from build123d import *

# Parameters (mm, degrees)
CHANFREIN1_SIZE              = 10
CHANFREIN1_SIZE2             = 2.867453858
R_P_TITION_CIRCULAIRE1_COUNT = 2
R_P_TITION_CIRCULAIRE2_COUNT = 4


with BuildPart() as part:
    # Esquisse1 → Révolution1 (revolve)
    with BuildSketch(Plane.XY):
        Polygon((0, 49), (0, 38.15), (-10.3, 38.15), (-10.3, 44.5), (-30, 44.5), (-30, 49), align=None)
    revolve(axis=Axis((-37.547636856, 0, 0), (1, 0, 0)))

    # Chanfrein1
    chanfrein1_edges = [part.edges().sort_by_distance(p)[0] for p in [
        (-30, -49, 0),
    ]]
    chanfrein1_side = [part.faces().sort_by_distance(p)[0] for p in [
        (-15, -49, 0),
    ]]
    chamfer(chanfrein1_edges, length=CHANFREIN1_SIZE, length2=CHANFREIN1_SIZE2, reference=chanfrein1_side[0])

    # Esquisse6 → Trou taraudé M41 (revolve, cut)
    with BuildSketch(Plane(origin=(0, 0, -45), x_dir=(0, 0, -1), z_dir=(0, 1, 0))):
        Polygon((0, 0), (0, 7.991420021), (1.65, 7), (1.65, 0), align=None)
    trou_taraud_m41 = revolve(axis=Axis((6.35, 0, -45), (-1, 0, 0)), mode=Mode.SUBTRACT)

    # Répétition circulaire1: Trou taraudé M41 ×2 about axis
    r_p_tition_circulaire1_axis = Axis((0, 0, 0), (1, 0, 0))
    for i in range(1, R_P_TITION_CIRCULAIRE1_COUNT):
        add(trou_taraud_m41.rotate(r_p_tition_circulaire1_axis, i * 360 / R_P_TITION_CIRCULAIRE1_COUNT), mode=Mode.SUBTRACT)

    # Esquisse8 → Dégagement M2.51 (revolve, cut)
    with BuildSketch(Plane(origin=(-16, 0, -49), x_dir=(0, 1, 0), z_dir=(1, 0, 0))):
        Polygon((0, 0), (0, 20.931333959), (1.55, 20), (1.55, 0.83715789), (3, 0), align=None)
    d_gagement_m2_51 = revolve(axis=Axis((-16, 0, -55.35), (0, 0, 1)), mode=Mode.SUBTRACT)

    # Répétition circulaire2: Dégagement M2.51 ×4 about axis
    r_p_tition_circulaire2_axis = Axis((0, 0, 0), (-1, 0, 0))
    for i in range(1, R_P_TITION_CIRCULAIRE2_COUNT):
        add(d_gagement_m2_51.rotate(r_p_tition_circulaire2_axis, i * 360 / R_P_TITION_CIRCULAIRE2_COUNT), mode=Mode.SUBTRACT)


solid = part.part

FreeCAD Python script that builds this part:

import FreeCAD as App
import Part
import Sketcher
Q = App.Units.Quantity


def edges_at(feature, points):
    """Names of the edges that pass closest to the given points."""
    edges = feature.Shape.Edges
    near = lambda p: min(range(len(edges)), key=lambda i: edges[i].distToShape(Part.Vertex(*p))[0])
    return sorted({f"Edge{near(p) + 1}" for p in points})

doc = App.newDocument("Part")
body = doc.addObject("PartDesign::Body", "Body")

sketch1 = doc.addObject("Sketcher::SketchObject", "Sketch")
body.addObject(sketch1)
sketch1.AttachmentSupport = (doc.XY_Plane, [""])
sketch1.MapMode = "FlatFace"
sketch1.addGeometry(Part.LineSegment(App.Vector(0, 38.1, 0), App.Vector(0, 49, 0)), False)
sketch1.addGeometry(Part.LineSegment(App.Vector(0, 49, 0), App.Vector(-30, 49, 0)), False)
sketch1.addGeometry(Part.LineSegment(App.Vector(-30, 49, 0), App.Vector(-30, 44.5, 0)), False)
sketch1.addGeometry(Part.LineSegment(App.Vector(-30, 44.5, 0), App.Vector(-10.3, 44.5, 0)), False)
sketch1.addGeometry(Part.LineSegment(App.Vector(-10.3, 44.5, 0), App.Vector(-10.3, 38.1, 0)), False)
sketch1.addGeometry(Part.LineSegment(App.Vector(-10.3, 38.1, 0), App.Vector(0, 38.1, 0)), False)
sketch1.addConstraint(Sketcher.Constraint("Coincident", 0, 2, 1, 1))
sketch1.addConstraint(Sketcher.Constraint("Coincident", 1, 2, 2, 1))
sketch1.addConstraint(Sketcher.Constraint("Coincident", 2, 2, 3, 1))
sketch1.addConstraint(Sketcher.Constraint("Coincident", 3, 2, 4, 1))
sketch1.addConstraint(Sketcher.Constraint("Coincident", 4, 2, 5, 1))
sketch1.addConstraint(Sketcher.Constraint("Coincident", 5, 2, 0, 1))
sketch1.addConstraint(Sketcher.Constraint("Vertical", 0))
sketch1.addConstraint(Sketcher.Constraint("Horizontal", 1))
sketch1.addConstraint(Sketcher.Constraint("Vertical", 2))
sketch1.addConstraint(Sketcher.Constraint("Horizontal", 3))
sketch1.addConstraint(Sketcher.Constraint("Vertical", 4))
sketch1.addConstraint(Sketcher.Constraint("Horizontal", 5))
sketch1.addConstraint(Sketcher.Constraint("PointOnObject", 0, 2, -2))
sketch1.addConstraint(Sketcher.Constraint("DistanceX", 1, 2, 1, 1, Q("30 mm")))
sketch1.addConstraint(Sketcher.Constraint("DistanceX", 3, 1, 3, 2, Q("19.7 mm")))
sketch1.addConstraint(Sketcher.Constraint("DistanceY", 2, 2, 2, 1, Q("4.5 mm")))
sketch1.addConstraint(Sketcher.Constraint("DistanceY", -1, 1, 0, 2, Q("49 mm")))
sketch1.addConstraint(Sketcher.Constraint("DistanceY", 0, 1, 0, 2, Q("10.85 mm")))
revolution = doc.addObject("PartDesign::Revolution", "Revolution")
body.addObject(revolution)
revolution.Profile = sketch1
revolution.ReferenceAxis = (sketch1, ["H_Axis"])
revolution.Angle = 360
doc.recompute()

chamfer = doc.addObject("PartDesign::Chamfer", "Chamfer")
body.addObject(chamfer)
chamfer.Base = (revolution, edges_at(revolution, [(-30, -49, 0)]))
chamfer.ChamferType = "Two distances"
chamfer.Size = 10
chamfer.Size2 = 2.867454

sketch2 = doc.addObject("Sketcher::SketchObject", "Sketch001")
body.addObject(sketch2)
sketch2.AttachmentSupport = (doc.XZ_Plane, [""])
sketch2.MapMode = "FlatFace"
sketch2.addGeometry(Part.LineSegment(App.Vector(-8, -45, 0), App.Vector(0, -45, 0)), False)
sketch2.addGeometry(Part.LineSegment(App.Vector(0, -45, 0), App.Vector(0, -46.6, 0)), False)
sketch2.addGeometry(Part.LineSegment(App.Vector(0, -46.6, 0), App.Vector(-7, -46.6, 0)), False)
sketch2.addGeometry(Part.LineSegment(App.Vector(-7, -46.6, 0), App.Vector(-8, -45, 0)), False)
sketch2.addGeometry(Part.LineSegment(App.Vector(0, -45, 0), App.Vector(-8, -45, 0)), True)
sketch2.addConstraint(Sketcher.Constraint("Coincident", 0, 2, 1, 1))
sketch2.addConstraint(Sketcher.Constraint("Coincident", 1, 2, 2, 1))
sketch2.addConstraint(Sketcher.Constraint("Coincident", 2, 2, 3, 1))
sketch2.addConstraint(Sketcher.Constraint("Coincident", 3, 2, 0, 1))
sketch2.addConstraint(Sketcher.Constraint("Horizontal", 0))
sketch2.addConstraint(Sketcher.Constraint("Vertical", 1))
sketch2.addConstraint(Sketcher.Constraint("Horizontal", 2))
sketch2.addConstraint(Sketcher.Constraint("Horizontal", 4))
sketch2.addConstraint(Sketcher.Constraint("Coincident", 4, 1, 0, 2))
sketch2.addConstraint(Sketcher.Constraint("PointOnObject", 0, 2, -2))
sketch2.addConstraint(Sketcher.Constraint("Equal", 0, 4))
sketch2.addConstraint(Sketcher.Constraint("DistanceX", 2, 2, 2, 1, Q("7 mm")))
sketch2.addConstraint(Sketcher.Constraint("Angle", 3, Q("121 deg")))
sketch2.addConstraint(Sketcher.Constraint("DistanceY", 0, 2, -1, 1, Q("45 mm")))
sketch2.addConstraint(Sketcher.Constraint("DistanceY", 1, 2, 1, 1, Q("1.65 mm")))
groove = doc.addObject("PartDesign::Groove", "Groove")
body.addObject(groove)
groove.Profile = sketch2
groove.ReferenceAxis = (sketch2, ["Axis0"])
groove.Angle = 360
doc.recompute()

polarpattern = doc.addObject("PartDesign::PolarPattern", "PolarPattern")
body.addObject(polarpattern)
polarpattern.Originals = [groove]
polarpattern.Axis = (doc.X_Axis, [""])
polarpattern.Angle = 360
polarpattern.Occurrences = 2
body.Tip = polarpattern

sketch3 = doc.addObject("Sketcher::SketchObject", "Sketch002")
body.addObject(sketch3)
sketch3.AttachmentSupport = (doc.YZ_Plane, [""])
sketch3.MapMode = "FlatFace"
sketch3.AttachmentOffset = App.Placement(App.Vector(0, 0, -16), App.Rotation())
sketch3.addGeometry(Part.LineSegment(App.Vector(0, -28.1, 0), App.Vector(0, -49, 0)), False)
sketch3.addGeometry(Part.LineSegment(App.Vector(0, -49, 0), App.Vector(3, -49, 0)), False)
sketch3.addGeometry(Part.LineSegment(App.Vector(3, -49, 0), App.Vector(1.6, -48.2, 0)), False)
sketch3.addGeometry(Part.LineSegment(App.Vector(1.6, -48.2, 0), App.Vector(1.6, -29, 0)), False)
sketch3.addGeometry(Part.LineSegment(App.Vector(1.6, -29, 0), App.Vector(0, -28.1, 0)), False)
sketch3.addConstraint(Sketcher.Constraint("Coincident", 0, 2, 1, 1))
sketch3.addConstraint(Sketcher.Constraint("Coincident", 1, 2, 2, 1))
sketch3.addConstraint(Sketcher.Constraint("Coincident", 2, 2, 3, 1))
sketch3.addConstraint(Sketcher.Constraint("Coincident", 3, 2, 4, 1))
sketch3.addConstraint(Sketcher.Constraint("Coincident", 4, 2, 0, 1))
sketch3.addConstraint(Sketcher.Constraint("Vertical", 0))
sketch3.addConstraint(Sketcher.Constraint("Horizontal", 1))
sketch3.addConstraint(Sketcher.Constraint("Vertical", 3))
sketch3.addConstraint(Sketcher.Constraint("PointOnObject", 0, 2, -2))
sketch3.addConstraint(Sketcher.Constraint("DistanceX", 1, 1, 1, 2, Q("3 mm")))
sketch3.addConstraint(Sketcher.Constraint("Angle", 2, Q("150 deg")))
sketch3.addConstraint(Sketcher.Constraint("Angle", 4, Q("149 deg")))
sketch3.addConstraint(Sketcher.Constraint("DistanceY", 0, 2, -1, 1, Q("49 mm")))
sketch3.addConstraint(Sketcher.Constraint("DistanceY", 3, 2, -1, 1, Q("29 mm")))
sketch3.addConstraint(Sketcher.Constraint("DistanceX", -1, 1, 2, 2, Q("1.55 mm")))
groove2 = doc.addObject("PartDesign::Groove", "Groove001")
body.addObject(groove2)
groove2.Profile = sketch3
groove2.ReferenceAxis = (sketch3, ["V_Axis"])
groove2.Angle = 360
doc.recompute()

polarpattern2 = doc.addObject("PartDesign::PolarPattern", "PolarPattern001")
body.addObject(polarpattern2)
polarpattern2.Originals = [groove2]
polarpattern2.Axis = (doc.X_Axis, [""])
polarpattern2.Angle = 360
polarpattern2.Occurrences = 4
body.Tip = polarpattern2

doc.recompute()
